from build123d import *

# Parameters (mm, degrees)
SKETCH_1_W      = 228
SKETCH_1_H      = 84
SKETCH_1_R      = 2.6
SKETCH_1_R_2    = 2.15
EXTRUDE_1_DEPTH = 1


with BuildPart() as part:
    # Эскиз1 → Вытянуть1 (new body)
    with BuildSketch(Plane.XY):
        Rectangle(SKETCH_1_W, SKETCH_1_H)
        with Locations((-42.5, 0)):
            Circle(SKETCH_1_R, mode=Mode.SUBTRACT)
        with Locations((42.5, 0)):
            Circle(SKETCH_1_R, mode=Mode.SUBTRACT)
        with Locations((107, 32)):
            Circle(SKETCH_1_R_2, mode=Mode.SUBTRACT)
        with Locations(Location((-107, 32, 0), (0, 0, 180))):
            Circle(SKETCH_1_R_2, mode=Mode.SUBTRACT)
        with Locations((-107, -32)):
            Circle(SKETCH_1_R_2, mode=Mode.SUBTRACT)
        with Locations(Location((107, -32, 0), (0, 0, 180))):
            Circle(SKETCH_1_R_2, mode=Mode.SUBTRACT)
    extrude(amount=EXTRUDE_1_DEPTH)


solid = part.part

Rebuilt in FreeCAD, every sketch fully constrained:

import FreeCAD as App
import Part
import Sketcher

doc = App.newDocument("Part")
body = doc.addObject("PartDesign::Body", "Body")

sketch1 = body.newObject("Sketcher::SketchObject", "Sketch")
sketch1.AttachmentSupport = (doc.getObject("XY_Plane"), [""])
sketch1.MapMode = "FlatFace"
sketch1.addGeometry(Part.LineSegment(App.Vector(-114, 42, 0), App.Vector(-114, -42, 0)), False)
sketch1.addGeometry(Part.LineSegment(App.Vector(-114, -42, 0), App.Vector(114, -42, 0)), False)
sketch1.addGeometry(Part.LineSegment(App.Vector(114, -42, 0), App.Vector(114, 42, 0)), False)
sketch1.addGeometry(Part.LineSegment(App.Vector(114, 42, 0), App.Vector(-114, 42, 0)), False)
sketch1.addGeometry(Part.Circle(App.Vector(-107, -32, 0), App.Vector(0, 0, 1), 2.1), False)
sketch1.addGeometry(Part.Circle(App.Vector(107, -32, 0), App.Vector(0, 0, 1), 2.1), False)
sketch1.addGeometry(Part.Circle(App.Vector(-42.5, 0, 0), App.Vector(0, 0, 1), 2.6), False)
sketch1.addGeometry(Part.Circle(App.Vector(-107, 32, 0), App.Vector(0, 0, 1), 2.1), False)
sketch1.addGeometry(Part.Circle(App.Vector(42.5, 0, 0), App.Vector(0, 0, 1), 2.6), False)
sketch1.addGeometry(Part.Circle(App.Vector(107, 32, 0), App.Vector(0, 0, 1), 2.1), False)
sketch1.addConstraint(Sketcher.Constraint("Coincident", 0, 2, 1, 1))
sketch1.addConstraint(Sketcher.Constraint("Coincident", 1, 2, 2, 1))
sketch1.addConstraint(Sketcher.Constraint("Coincident", 2, 2, 3, 1))
sketch1.addConstraint(Sketcher.Constraint("Coincident", 3, 2, 0, 1))
sketch1.addConstraint(Sketcher.Constraint("Vertical", 0))
sketch1.addConstraint(Sketcher.Constraint("Horizontal", 1))
sketch1.addConstraint(Sketcher.Constraint("Vertical", 2))
sketch1.addConstraint(Sketcher.Constraint("Horizontal", 3))
sketch1.addConstraint(Sketcher.Constraint("Equal", 4, 5))
sketch1.addConstraint(Sketcher.Constraint("Equal", 5, 7))
sketch1.addConstraint(Sketcher.Constraint("Equal", 6, 8))
sketch1.addConstraint(Sketcher.Constraint("Equal", 7, 9))
sketch1.addConstraint(Sketcher.Constraint("Symmetric", 5, 3, 7, 3, -1, 1))
sketch1.addConstraint(Sketcher.Constraint("Symmetric", 6, 3, 8, 3, -1, 1))
sketch1.addConstraint(Sketcher.Constraint("Symmetric", 4, 3, 9, 3, -1, 1))
sketch1.addConstraint(Sketcher.Constraint("Symmetric", 0, 2, 2, 2, -1, 1))
sketch1.addConstraint(Sketcher.Constraint("Symmetric", 4, 3, 5, 3, -2))
sketch1.addConstraint(Sketcher.Constraint("PointOnObject", 6, 3, -1))
sketch1.addConstraint(Sketcher.Constraint("Diameter", 4, 4.3))
sketch1.addConstraint(Sketcher.Constraint("Diameter", 6, 5.2))
sketch1.addConstraint(Sketcher.Constraint("DistanceX", 1, 1, 1, 2, 228.0))
sketch1.addConstraint(Sketcher.Constraint("DistanceY", 0, 2, 0, 1, 84.0))
sketch1.addConstraint(Sketcher.Constraint("DistanceX", 4, 3, -1, 1, 107.0))
sketch1.addConstraint(Sketcher.Constraint("DistanceY", 4, 3, -1, 1, 32.0))
sketch1.addConstraint(Sketcher.Constraint("DistanceX", 6, 3, 8, 3, 85.0))
pad1 = body.newObject("PartDesign::Pad", "Pad")
pad1.Profile = sketch1
pad1.Length = 1

doc.recompute()
